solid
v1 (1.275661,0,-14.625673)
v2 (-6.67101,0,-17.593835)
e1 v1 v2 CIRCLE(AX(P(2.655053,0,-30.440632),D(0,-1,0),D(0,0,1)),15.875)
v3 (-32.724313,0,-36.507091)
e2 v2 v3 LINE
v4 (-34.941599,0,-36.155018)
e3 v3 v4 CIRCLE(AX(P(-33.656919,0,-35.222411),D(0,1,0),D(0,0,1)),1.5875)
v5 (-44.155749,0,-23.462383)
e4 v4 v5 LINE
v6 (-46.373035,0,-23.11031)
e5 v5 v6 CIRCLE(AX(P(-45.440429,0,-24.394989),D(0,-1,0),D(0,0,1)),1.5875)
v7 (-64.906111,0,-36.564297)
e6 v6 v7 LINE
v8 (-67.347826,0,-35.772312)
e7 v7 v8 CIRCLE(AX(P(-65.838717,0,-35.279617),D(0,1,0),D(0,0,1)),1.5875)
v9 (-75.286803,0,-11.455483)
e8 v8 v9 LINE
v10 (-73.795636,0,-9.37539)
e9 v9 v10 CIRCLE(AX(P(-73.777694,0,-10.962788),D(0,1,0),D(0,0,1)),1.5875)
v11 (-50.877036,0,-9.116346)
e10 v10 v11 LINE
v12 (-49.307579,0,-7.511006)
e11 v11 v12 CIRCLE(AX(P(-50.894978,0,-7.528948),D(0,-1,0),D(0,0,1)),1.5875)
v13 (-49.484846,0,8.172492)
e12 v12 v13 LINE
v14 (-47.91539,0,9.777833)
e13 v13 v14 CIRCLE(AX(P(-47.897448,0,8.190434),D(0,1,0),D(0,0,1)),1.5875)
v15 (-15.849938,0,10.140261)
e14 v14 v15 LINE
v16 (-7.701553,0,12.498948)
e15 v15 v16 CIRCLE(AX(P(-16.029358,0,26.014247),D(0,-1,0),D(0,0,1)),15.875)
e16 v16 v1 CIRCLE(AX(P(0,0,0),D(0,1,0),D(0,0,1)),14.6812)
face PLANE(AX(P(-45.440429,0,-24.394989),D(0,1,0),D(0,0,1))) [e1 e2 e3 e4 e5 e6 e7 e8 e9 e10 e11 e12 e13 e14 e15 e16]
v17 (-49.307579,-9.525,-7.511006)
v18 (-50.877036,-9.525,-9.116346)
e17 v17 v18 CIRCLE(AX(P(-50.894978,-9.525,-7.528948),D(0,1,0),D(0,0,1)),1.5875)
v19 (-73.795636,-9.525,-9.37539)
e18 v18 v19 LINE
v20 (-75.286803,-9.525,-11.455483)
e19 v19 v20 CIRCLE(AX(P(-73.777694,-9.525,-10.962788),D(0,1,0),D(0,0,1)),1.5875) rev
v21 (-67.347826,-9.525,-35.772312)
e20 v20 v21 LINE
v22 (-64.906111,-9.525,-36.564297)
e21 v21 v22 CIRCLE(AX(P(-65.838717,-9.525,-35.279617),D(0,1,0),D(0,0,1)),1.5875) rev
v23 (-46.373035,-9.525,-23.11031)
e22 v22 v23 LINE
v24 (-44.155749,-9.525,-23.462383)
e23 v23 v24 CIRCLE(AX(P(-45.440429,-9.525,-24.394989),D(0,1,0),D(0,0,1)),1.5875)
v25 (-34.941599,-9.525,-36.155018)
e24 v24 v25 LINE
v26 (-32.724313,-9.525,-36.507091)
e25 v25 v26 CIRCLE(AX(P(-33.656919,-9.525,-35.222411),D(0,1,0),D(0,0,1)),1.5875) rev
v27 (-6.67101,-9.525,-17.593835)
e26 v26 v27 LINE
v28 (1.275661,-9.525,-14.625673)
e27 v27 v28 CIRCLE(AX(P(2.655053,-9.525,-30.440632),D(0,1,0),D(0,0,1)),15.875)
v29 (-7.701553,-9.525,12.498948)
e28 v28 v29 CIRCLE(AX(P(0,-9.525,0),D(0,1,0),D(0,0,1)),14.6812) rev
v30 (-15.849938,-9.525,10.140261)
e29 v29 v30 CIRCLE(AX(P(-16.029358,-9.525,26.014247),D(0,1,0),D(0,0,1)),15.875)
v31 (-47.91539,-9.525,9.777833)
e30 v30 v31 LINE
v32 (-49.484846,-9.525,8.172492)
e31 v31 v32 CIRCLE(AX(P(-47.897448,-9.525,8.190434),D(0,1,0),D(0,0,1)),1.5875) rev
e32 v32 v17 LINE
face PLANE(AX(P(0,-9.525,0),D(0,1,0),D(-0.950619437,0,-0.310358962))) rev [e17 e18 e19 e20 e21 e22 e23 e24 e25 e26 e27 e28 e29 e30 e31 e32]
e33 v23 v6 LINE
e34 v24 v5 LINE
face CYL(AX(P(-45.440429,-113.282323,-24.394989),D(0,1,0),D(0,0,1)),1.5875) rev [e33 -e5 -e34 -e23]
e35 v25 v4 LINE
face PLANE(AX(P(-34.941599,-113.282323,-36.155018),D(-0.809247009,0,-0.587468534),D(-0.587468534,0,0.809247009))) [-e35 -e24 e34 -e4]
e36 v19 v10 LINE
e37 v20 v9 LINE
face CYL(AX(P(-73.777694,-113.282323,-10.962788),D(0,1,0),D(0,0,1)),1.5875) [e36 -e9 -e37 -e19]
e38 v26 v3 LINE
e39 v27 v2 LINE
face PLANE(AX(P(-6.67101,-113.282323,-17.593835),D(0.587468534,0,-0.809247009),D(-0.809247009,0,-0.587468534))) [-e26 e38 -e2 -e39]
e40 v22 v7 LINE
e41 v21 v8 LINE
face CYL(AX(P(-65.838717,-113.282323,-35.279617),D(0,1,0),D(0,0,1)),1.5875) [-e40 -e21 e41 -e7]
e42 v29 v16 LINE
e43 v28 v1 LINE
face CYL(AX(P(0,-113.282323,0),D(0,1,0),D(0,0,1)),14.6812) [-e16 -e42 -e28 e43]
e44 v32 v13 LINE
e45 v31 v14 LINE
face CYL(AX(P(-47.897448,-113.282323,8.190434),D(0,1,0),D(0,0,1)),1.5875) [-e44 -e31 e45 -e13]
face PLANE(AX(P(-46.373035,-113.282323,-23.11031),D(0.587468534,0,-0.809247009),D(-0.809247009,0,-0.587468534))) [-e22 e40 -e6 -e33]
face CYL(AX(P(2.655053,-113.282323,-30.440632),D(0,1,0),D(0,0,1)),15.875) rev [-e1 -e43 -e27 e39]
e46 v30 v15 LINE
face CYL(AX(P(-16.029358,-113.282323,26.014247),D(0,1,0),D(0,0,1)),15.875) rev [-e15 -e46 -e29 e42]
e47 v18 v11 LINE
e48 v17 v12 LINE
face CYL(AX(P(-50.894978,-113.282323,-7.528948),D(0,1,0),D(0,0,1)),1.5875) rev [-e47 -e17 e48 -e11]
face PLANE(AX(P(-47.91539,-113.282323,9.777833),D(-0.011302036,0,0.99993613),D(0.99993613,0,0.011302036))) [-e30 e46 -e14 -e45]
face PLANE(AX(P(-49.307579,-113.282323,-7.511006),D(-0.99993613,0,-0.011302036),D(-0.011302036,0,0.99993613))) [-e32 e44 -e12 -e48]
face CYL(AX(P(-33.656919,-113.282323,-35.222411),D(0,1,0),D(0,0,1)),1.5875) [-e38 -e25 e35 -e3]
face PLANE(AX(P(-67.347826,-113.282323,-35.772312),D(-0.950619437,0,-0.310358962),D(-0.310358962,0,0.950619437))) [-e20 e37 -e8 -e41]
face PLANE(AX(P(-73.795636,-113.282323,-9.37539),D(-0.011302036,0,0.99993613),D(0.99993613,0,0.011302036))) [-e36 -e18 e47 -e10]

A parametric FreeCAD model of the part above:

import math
import FreeCAD as App
import Part
import Sketcher

V = App.Vector
Q = App.Units.Quantity

doc = App.newDocument("Part")
params = doc.addObject("Spreadsheet::Sheet", "Params")
for row, (alias, value) in enumerate([
    ("sketch1_radius", "0.0625 in"),
    ("sketch1_radius2", "0.625 in"),
    ("sketch1_radius3", "0.578 in"),
    ("pad1_length", "0.375 in"),
], start=1):
    params.set(f"A{row}", alias)
    params.set(f"B{row}", "=" + value)
    params.setAlias(f"B{row}", alias)

body = doc.addObject("PartDesign::Body", "Body")

sketch1 = body.newObject("Sketcher::SketchObject", "Sketch")
sketch1.AttachmentSupport = (doc.getObject("XZ_Plane"), [""])
sketch1.MapMode = "FlatFace"
sketch1.addGeometry([
    Part.LineSegment(V(-46.4, -23.1, 0), V(-64.9, -36.6, 0)),
    Part.ArcOfCircle(Part.Circle(V(-65.8, -35.3, 0), V(0, 0, 1), 1.6), math.radians(-162), math.radians(-54)),
    Part.LineSegment(V(-67.3, -35.8, 0), V(-75.3, -11.5, 0)),
    Part.ArcOfCircle(Part.Circle(V(-73.8, -11, 0), V(0, 0, 1), 1.6), math.radians(91), math.radians(198)),
    Part.LineSegment(V(-73.8, -9.4, 0), V(-50.9, -9.1, 0)),
    Part.ArcOfCircle(Part.Circle(V(-50.9, -7.5, 0), V(0, 0, 1), 1.6), math.radians(-89), math.radians(1)),
    Part.LineSegment(V(-49.3, -7.5, 0), V(-49.5, 8.2, 0)),
    Part.ArcOfCircle(Part.Circle(V(-47.9, 8.2, 0), V(0, 0, 1), 1.6), math.radians(91), math.radians(181)),
    Part.LineSegment(V(-47.9, 9.8, 0), V(-15.8, 10.1, 0)),
    Part.ArcOfCircle(Part.Circle(V(-16, 26, 0), V(0, 0, 1), 15.9), math.radians(-89), math.radians(-58)),
    Part.ArcOfCircle(Part.Circle(V(0, 0, 0), V(0, 0, 1), 14.7), math.radians(-85), math.radians(122)),
    Part.ArcOfCircle(Part.Circle(V(2.7, -30.4, 0), V(0, 0, 1), 15.9), math.radians(95), math.radians(126)),
    Part.LineSegment(V(-6.7, -17.6, 0), V(-32.7, -36.5, 0)),
    Part.ArcOfCircle(Part.Circle(V(-33.7, -35.2, 0), V(0, 0, 1), 1.6), math.radians(-144), math.radians(-54)),
    Part.LineSegment(V(-34.9, -36.2, 0), V(-44.2, -23.5, 0)),
    Part.ArcOfCircle(Part.Circle(V(-45.4, -24.4, 0), V(0, 0, 1), 1.6), math.radians(36), math.radians(126)),
], False)
sketch1.addConstraint([
    Sketcher.Constraint("Tangent", 0, 2, 1, 2),
    Sketcher.Constraint("Tangent", 1, 1, 2, 1),
    Sketcher.Constraint("Tangent", 2, 2, 3, 2),
    Sketcher.Constraint("Tangent", 3, 1, 4, 1),
    Sketcher.Constraint("Tangent", 4, 2, 5, 1),
    Sketcher.Constraint("Tangent", 5, 2, 6, 1),
    Sketcher.Constraint("Tangent", 6, 2, 7, 2),
    Sketcher.Constraint("Tangent", 7, 1, 8, 1),
    Sketcher.Constraint("Tangent", 8, 2, 9, 1),
    Sketcher.Constraint("Tangent", 9, 2, 10, 2),
    Sketcher.Constraint("Tangent", 10, 1, 11, 1),
    Sketcher.Constraint("Tangent", 11, 2, 12, 1),
    Sketcher.Constraint("Tangent", 12, 2, 13, 2),
    Sketcher.Constraint("Tangent", 13, 1, 14, 1),
    Sketcher.Constraint("Tangent", 14, 2, 15, 1),
    Sketcher.Constraint("Tangent", 15, 2, 0, 1),
    Sketcher.Constraint("Coincident", 10, 3, -1, 1),
    Sketcher.Constraint("Equal", 1, 3),
    Sketcher.Constraint("Equal", 3, 5),
    Sketcher.Constraint("Equal", 5, 7),
    Sketcher.Constraint("Equal", 9, 11),
    Sketcher.Constraint("Equal", 7, 13),
    Sketcher.Constraint("Equal", 13, 15),
    Sketcher.Constraint("Perpendicular", 4, 6),
    Sketcher.Constraint("Perpendicular", 6, 8),
    Sketcher.Constraint("Parallel", 0, 12),
    Sketcher.Constraint("Perpendicular", 12, 14),
    Sketcher.Constraint("Equal", 6, 14),
    Sketcher.Constraint("Radius", 1, Q("0.0625 in")),
    Sketcher.Constraint("Radius", 9, Q("0.625 in")),
    Sketcher.Constraint("Radius", 10, Q("0.578 in")),
    Sketcher.Constraint("DistanceX", 1, 3, 13, 3, Q("1.2669999 in")),
    Sketcher.Constraint("Distance", 6, Q("0.6175 in")),
    Sketcher.Constraint("Distance", 8, Q("1.2625 in")),
    Sketcher.Constraint("Distance", 12, Q("1.2675 in")),
    Sketcher.Constraint("DistanceX", 13, 1, -1, 1, 34.941599),
    Sketcher.Constraint("DistanceX", 7, 3, 11, 3, 50.5525),
    Sketcher.Constraint("DistanceY", 15, 3, 3, 3, 13.432201),
    Sketcher.Constraint("DistanceX", 3, 1, 4, 2, 22.9186),
    Sketcher.Constraint("DistanceY", 9, 2, 9, 3, 13.515299),
])
sketch1.setExpression("Constraints[28]", "Params.sketch1_radius")
sketch1.setExpression("Constraints[29]", "Params.sketch1_radius2")
sketch1.setExpression("Constraints[30]", "Params.sketch1_radius3")
pad1 = body.newObject("PartDesign::Pad", "Pad")
pad1.Profile = sketch1
pad1.setExpression("Length", "Params.pad1_length")

doc.recompute()
